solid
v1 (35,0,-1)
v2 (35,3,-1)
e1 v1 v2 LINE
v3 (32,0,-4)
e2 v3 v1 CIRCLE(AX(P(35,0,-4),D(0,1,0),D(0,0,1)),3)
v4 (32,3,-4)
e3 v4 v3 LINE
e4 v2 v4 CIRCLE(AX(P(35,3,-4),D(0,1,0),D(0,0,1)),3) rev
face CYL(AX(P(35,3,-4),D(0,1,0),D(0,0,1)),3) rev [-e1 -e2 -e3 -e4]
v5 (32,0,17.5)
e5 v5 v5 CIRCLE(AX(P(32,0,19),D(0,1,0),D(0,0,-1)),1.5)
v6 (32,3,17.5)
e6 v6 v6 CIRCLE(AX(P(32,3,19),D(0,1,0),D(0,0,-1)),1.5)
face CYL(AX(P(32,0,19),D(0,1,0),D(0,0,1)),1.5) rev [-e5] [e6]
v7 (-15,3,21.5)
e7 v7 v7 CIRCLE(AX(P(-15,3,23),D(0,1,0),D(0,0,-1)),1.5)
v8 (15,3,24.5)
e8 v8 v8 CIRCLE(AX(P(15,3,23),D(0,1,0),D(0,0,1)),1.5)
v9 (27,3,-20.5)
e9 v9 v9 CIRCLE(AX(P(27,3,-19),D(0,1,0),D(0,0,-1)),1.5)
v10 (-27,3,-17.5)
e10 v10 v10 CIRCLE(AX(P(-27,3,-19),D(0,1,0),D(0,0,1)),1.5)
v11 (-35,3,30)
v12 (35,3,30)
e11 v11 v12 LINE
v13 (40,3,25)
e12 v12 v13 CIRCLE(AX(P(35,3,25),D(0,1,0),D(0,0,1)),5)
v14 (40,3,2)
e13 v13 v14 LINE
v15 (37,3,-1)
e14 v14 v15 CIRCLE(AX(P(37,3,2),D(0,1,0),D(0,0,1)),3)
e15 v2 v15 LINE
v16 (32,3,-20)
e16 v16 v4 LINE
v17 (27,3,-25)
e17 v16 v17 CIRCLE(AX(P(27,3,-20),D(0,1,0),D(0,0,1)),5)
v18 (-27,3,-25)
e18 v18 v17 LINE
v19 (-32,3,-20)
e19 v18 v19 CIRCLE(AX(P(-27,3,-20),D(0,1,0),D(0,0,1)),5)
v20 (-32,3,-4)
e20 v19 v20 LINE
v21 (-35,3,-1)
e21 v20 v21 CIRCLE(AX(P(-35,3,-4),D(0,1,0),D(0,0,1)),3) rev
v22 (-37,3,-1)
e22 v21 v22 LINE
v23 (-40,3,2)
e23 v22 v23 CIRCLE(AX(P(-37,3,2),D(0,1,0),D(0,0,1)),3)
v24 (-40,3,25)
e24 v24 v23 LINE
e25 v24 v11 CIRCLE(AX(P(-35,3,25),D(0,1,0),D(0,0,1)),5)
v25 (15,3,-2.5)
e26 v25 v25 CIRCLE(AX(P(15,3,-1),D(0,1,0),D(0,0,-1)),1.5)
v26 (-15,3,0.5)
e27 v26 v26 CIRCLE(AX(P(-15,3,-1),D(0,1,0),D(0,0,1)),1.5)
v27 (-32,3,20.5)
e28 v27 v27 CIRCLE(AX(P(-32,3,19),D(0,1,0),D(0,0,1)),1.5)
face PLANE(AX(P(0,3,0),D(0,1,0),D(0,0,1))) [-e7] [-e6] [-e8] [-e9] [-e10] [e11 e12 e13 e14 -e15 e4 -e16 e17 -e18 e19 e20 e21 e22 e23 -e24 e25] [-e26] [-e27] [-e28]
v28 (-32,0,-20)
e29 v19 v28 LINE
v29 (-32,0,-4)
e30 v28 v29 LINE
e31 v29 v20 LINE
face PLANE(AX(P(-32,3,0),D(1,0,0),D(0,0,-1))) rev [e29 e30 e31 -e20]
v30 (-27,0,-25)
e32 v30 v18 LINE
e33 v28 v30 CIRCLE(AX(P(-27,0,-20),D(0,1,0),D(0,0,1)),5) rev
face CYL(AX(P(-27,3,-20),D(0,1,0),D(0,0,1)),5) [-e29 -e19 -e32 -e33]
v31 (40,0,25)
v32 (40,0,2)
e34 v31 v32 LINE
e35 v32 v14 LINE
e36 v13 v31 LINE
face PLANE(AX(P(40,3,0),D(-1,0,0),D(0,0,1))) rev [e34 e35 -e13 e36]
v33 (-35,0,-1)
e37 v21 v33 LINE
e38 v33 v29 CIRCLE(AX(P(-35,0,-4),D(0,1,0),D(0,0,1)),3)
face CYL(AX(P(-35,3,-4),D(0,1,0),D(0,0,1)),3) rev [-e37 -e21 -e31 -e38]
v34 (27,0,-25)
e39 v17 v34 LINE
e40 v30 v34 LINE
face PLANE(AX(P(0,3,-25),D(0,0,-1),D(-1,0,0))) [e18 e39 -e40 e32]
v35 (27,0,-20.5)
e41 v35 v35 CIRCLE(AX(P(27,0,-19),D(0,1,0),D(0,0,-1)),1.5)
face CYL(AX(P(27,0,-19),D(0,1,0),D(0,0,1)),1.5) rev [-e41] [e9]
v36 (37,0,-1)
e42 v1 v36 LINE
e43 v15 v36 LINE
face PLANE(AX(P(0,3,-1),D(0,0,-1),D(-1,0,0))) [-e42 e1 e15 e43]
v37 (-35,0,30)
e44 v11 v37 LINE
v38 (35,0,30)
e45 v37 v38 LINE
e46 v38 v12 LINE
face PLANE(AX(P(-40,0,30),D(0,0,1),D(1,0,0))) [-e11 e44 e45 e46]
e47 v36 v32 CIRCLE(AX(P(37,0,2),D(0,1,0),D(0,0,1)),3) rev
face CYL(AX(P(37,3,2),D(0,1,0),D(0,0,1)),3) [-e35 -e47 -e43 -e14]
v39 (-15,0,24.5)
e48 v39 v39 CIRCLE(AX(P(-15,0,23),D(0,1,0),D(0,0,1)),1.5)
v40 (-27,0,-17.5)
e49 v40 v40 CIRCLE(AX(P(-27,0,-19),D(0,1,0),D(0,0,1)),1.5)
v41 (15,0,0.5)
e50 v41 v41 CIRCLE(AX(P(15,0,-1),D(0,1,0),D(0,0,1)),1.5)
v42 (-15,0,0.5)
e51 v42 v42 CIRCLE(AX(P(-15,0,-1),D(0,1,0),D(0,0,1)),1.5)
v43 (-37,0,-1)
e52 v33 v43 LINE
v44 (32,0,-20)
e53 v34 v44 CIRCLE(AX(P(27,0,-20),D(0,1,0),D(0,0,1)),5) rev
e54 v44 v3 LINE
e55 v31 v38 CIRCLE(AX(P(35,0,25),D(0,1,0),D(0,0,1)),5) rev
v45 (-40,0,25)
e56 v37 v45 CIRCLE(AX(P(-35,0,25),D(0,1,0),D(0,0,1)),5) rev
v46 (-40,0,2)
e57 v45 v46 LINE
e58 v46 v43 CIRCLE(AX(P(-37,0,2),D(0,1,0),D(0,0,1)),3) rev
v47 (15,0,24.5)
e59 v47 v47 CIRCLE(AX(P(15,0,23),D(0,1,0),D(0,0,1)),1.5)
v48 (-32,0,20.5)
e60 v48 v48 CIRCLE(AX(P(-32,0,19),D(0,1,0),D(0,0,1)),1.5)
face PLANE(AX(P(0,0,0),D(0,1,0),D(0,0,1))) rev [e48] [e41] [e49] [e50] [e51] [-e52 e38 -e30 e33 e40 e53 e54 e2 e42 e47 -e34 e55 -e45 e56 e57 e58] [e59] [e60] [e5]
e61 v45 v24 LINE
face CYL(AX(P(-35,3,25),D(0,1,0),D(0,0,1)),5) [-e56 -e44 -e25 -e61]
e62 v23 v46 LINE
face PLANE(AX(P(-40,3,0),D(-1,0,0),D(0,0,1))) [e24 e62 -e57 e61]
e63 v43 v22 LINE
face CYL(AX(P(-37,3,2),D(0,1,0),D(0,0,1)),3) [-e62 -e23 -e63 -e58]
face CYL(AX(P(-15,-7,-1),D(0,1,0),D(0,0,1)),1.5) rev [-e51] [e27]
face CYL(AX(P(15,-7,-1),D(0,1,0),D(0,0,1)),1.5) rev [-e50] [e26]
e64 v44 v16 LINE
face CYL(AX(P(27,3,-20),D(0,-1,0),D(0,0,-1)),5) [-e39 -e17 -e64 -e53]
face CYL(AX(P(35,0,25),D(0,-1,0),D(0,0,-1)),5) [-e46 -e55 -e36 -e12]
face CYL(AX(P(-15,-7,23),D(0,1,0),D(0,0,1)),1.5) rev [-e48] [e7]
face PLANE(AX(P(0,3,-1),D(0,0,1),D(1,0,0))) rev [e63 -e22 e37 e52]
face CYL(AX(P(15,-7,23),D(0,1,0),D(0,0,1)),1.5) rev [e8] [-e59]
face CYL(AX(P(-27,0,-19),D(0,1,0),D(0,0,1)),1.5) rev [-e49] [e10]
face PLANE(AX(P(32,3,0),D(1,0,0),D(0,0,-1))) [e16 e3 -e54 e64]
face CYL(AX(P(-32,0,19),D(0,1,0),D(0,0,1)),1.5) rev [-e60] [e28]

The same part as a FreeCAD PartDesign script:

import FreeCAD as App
import Part
import Sketcher

V = App.Vector


def edges_at(feature, points):
    """Names of the edges that pass closest to the given points."""
    edges = feature.Shape.Edges
    near = lambda p: min(range(len(edges)), key=lambda i: edges[i].distToShape(Part.Vertex(*p))[0])
    return sorted({f"Edge{near(p) + 1}" for p in points})


def add_polygon(sketch, points):
    """Adds a closed chain of lines whose ends are joined by coincident constraints."""
    first, n = sketch.GeometryCount, len(points)
    for a, b in zip(points, points[1:] + points[:1]):
        sketch.addGeometry(Part.LineSegment(App.Vector(*a, 0), App.Vector(*b, 0)), False)
    for i in range(n):
        sketch.addConstraint(Sketcher.Constraint("Coincident", first + i, 2, first + (i + 1) % n, 1))

doc = App.newDocument("Part")
params = doc.addObject("Spreadsheet::Sheet", "Params")
for row, (alias, value) in enumerate([
    ("sketch1_width", "80 mm"),
    ("sketch1_width2", "8 mm"),
    ("sketch1_height", "26 mm"),
    ("sketch1_height2", "24 mm"),
    ("pad1_length", "3 mm"),
    ("sketch2_diameter", "3 mm"),
    ("pocket1_length", "3 mm"),
    ("fillet_radius", "3 mm"),
    ("sketch3_diameter", "3 mm"),
    ("pocket2_length", "10 mm"),
    ("sketch4_width", "80 mm"),
    ("sketch4_height", "5 mm"),
    ("pad2_length", "3 mm"),
    ("fillet2_radius", "5 mm"),
], start=1):
    params.set(f"A{row}", alias)
    params.set(f"B{row}", "=" + value)
    params.setAlias(f"B{row}", alias)

body = doc.addObject("PartDesign::Body", "Body")

# Sketch on XZ plane
sketch1 = body.newObject("Sketcher::SketchObject", "Sketch")
sketch1.AttachmentSupport = (doc.getObject("XZ_Plane"), [""])
sketch1.MapMode = "FlatFace"
add_polygon(sketch1, [(-40, -1), (-40, 25), (40, 25), (40, -1), (32, -1), (32, -25), (-32, -25), (-32, -1)])  # lines 0-7
sketch1.addConstraint([
    Sketcher.Constraint("Vertical", 0),
    Sketcher.Constraint("Horizontal", 1),
    Sketcher.Constraint("Vertical", 2),
    Sketcher.Constraint("Horizontal", 3),
    Sketcher.Constraint("Vertical", 4),
    Sketcher.Constraint("Horizontal", 5),
    Sketcher.Constraint("Vertical", 6),
    Sketcher.Constraint("Horizontal", 7),
    Sketcher.Constraint("Symmetric", 3, 2, 6, 2, -2),
    Sketcher.Constraint("Equal", 3, 7),
    Sketcher.Constraint("DistanceX", 1, 1, 1, 2, 80.0),
    Sketcher.Constraint("DistanceX", 3, 2, 3, 1, 8.0),
    Sketcher.Constraint("DistanceY", 0, 1, 0, 2, 26.0),
    Sketcher.Constraint("DistanceY", 4, 2, 4, 1, 24.0),
    Sketcher.Constraint("DistanceY", -1, 1, 0, 2, 25.0),
])
sketch1.setExpression("Constraints[18]", "Params.sketch1_width")
sketch1.setExpression("Constraints[19]", "Params.sketch1_width2")
sketch1.setExpression("Constraints[20]", "Params.sketch1_height")
sketch1.setExpression("Constraints[21]", "Params.sketch1_height2")
pad1 = body.newObject("PartDesign::Pad", "Pad")
pad1.Profile = sketch1
pad1.setExpression("Length", "Params.pad1_length")
pad1.Reversed = True

# Sketch on XZ plane
sketch2 = body.newObject("Sketcher::SketchObject", "Sketch001")
sketch2.AttachmentSupport = (doc.getObject("XZ_Plane"), [""])
sketch2.MapMode = "FlatFace"
sketch2.AttachmentOffset = App.Placement(V(0, 0, -3), App.Rotation())
sketch2.addGeometry([
    Part.Circle(V(-32, 19, 0), V(0, 0, 1), 1.5),
    Part.Circle(V(32, 19, 0), V(0, 0, 1), 1.5),
    Part.Circle(V(-27, -19, 0), V(0, 0, 1), 1.5),
    Part.Circle(V(27, -19, 0), V(0, 0, 1), 1.5),
], False)
sketch2.addConstraint([
    Sketcher.Constraint("Equal", 0, 1),
    Sketcher.Constraint("Equal", 1, 2),
    Sketcher.Constraint("Equal", 2, 3),
    Sketcher.Constraint("Symmetric", 0, 3, 1, 3, -2),
    Sketcher.Constraint("Symmetric", 2, 3, 3, 3, -2),
    Sketcher.Constraint("Diameter", 0, 3.0),
    Sketcher.Constraint("DistanceX", 0, 3, -1, 1, 32.0),
    Sketcher.Constraint("DistanceY", -1, 1, 0, 3, 19.0),
    Sketcher.Constraint("DistanceX", 2, 3, -1, 1, 27.0),
    Sketcher.Constraint("DistanceY", 2, 3, -1, 1, 19.0),
])
sketch2.setExpression("Constraints[5]", "Params.sketch2_diameter")
pocket1 = body.newObject("PartDesign::Pocket", "Pocket")
pocket1.Profile = sketch2
pocket1.setExpression("Length", "Params.pocket1_length")
pocket1.Reversed = True
doc.recompute()

fillet = body.newObject("PartDesign::Fillet", "Fillet")
fillet.Base = (pocket1, edges_at(pocket1, [
    (32, 1.5, -1),
    (40, 1.5, -1),
    (-40, 1.5, -1),
    (-32, 1.5, -1),
]))
fillet.setExpression("Radius", "Params.fillet_radius")

# Sketch on XZ plane
sketch3 = body.newObject("Sketcher::SketchObject", "Sketch002")
sketch3.AttachmentSupport = (doc.getObject("XZ_Plane"), [""])
sketch3.MapMode = "FlatFace"
sketch3.AttachmentOffset = App.Placement(V(0, 0, -3), App.Rotation())
sketch3.addGeometry([
    Part.Circle(V(-15, -1, 0), V(0, 0, 1), 1.5),
    Part.Circle(V(-15, 23, 0), V(0, 0, 1), 1.5),
    Part.Circle(V(15, 23, 0), V(0, 0, 1), 1.5),
    Part.Circle(V(15, -1, 0), V(0, 0, 1), 1.5),
], False)
sketch3.addConstraint([
    Sketcher.Constraint("Equal", 0, 1),
    Sketcher.Constraint("Equal", 1, 2),
    Sketcher.Constraint("Equal", 2, 3),
    Sketcher.Constraint("Symmetric", 1, 3, 2, 3, -2),
    Sketcher.Constraint("Symmetric", 0, 3, 3, 3, -2),
    Sketcher.Constraint("Vertical", 0, 3, 1, 3),
    Sketcher.Constraint("Diameter", 0, 3.0),
    Sketcher.Constraint("DistanceX", 0, 3, -1, 1, 15.0),
    Sketcher.Constraint("DistanceY", 0, 3, -1, 1, 1.0),
    Sketcher.Constraint("DistanceY", -1, 1, 1, 3, 23.0),
])
sketch3.setExpression("Constraints[6]", "Params.sketch3_diameter")
pocket2 = body.newObject("PartDesign::Pocket", "Pocket001")
pocket2.Profile = sketch3
pocket2.setExpression("Length", "Params.pocket2_length")
pocket2.Reversed = True

# Sketch on XZ plane
sketch4 = body.newObject("Sketcher::SketchObject", "Sketch003")
sketch4.AttachmentSupport = (doc.getObject("XZ_Plane"), [""])
sketch4.MapMode = "FlatFace"
sketch4.AttachmentOffset = App.Placement(V(0, 0, -3), App.Rotation())
add_polygon(sketch4, [(-40, 25), (-40, 30), (40, 30), (40, 25)])  # lines 0-3
sketch4.addConstraint([
    Sketcher.Constraint("Vertical", 0),
    Sketcher.Constraint("Horizontal", 1),
    Sketcher.Constraint("Vertical", 2),
    Sketcher.Constraint("Horizontal", 3),
    Sketcher.Constraint("DistanceX", 1, 1, 1, 2, 80.0),
    Sketcher.Constraint("DistanceY", 0, 1, 0, 2, 5.0),
    Sketcher.Constraint("DistanceX", 0, 2, -1, 1, 40.0),
    Sketcher.Constraint("DistanceY", -1, 1, 0, 2, 30.0),
])
sketch4.setExpression("Constraints[8]", "Params.sketch4_width")
sketch4.setExpression("Constraints[9]", "Params.sketch4_height")
pad2 = body.newObject("PartDesign::Pad", "Pad001")
pad2.Profile = sketch4
pad2.setExpression("Length", "Params.pad2_length")
doc.recompute()

fillet2 = body.newObject("PartDesign::Fillet", "Fillet001")
fillet2.Base = (pad2, edges_at(pad2, [
    (-32, 1.5, -25),
    (32, 1.5, -25),
    (40, 1.5, 30),
    (-40, 1.5, 30),
]))
fillet2.setExpression("Radius", "Params.fillet2_radius")

doc.recompute()
